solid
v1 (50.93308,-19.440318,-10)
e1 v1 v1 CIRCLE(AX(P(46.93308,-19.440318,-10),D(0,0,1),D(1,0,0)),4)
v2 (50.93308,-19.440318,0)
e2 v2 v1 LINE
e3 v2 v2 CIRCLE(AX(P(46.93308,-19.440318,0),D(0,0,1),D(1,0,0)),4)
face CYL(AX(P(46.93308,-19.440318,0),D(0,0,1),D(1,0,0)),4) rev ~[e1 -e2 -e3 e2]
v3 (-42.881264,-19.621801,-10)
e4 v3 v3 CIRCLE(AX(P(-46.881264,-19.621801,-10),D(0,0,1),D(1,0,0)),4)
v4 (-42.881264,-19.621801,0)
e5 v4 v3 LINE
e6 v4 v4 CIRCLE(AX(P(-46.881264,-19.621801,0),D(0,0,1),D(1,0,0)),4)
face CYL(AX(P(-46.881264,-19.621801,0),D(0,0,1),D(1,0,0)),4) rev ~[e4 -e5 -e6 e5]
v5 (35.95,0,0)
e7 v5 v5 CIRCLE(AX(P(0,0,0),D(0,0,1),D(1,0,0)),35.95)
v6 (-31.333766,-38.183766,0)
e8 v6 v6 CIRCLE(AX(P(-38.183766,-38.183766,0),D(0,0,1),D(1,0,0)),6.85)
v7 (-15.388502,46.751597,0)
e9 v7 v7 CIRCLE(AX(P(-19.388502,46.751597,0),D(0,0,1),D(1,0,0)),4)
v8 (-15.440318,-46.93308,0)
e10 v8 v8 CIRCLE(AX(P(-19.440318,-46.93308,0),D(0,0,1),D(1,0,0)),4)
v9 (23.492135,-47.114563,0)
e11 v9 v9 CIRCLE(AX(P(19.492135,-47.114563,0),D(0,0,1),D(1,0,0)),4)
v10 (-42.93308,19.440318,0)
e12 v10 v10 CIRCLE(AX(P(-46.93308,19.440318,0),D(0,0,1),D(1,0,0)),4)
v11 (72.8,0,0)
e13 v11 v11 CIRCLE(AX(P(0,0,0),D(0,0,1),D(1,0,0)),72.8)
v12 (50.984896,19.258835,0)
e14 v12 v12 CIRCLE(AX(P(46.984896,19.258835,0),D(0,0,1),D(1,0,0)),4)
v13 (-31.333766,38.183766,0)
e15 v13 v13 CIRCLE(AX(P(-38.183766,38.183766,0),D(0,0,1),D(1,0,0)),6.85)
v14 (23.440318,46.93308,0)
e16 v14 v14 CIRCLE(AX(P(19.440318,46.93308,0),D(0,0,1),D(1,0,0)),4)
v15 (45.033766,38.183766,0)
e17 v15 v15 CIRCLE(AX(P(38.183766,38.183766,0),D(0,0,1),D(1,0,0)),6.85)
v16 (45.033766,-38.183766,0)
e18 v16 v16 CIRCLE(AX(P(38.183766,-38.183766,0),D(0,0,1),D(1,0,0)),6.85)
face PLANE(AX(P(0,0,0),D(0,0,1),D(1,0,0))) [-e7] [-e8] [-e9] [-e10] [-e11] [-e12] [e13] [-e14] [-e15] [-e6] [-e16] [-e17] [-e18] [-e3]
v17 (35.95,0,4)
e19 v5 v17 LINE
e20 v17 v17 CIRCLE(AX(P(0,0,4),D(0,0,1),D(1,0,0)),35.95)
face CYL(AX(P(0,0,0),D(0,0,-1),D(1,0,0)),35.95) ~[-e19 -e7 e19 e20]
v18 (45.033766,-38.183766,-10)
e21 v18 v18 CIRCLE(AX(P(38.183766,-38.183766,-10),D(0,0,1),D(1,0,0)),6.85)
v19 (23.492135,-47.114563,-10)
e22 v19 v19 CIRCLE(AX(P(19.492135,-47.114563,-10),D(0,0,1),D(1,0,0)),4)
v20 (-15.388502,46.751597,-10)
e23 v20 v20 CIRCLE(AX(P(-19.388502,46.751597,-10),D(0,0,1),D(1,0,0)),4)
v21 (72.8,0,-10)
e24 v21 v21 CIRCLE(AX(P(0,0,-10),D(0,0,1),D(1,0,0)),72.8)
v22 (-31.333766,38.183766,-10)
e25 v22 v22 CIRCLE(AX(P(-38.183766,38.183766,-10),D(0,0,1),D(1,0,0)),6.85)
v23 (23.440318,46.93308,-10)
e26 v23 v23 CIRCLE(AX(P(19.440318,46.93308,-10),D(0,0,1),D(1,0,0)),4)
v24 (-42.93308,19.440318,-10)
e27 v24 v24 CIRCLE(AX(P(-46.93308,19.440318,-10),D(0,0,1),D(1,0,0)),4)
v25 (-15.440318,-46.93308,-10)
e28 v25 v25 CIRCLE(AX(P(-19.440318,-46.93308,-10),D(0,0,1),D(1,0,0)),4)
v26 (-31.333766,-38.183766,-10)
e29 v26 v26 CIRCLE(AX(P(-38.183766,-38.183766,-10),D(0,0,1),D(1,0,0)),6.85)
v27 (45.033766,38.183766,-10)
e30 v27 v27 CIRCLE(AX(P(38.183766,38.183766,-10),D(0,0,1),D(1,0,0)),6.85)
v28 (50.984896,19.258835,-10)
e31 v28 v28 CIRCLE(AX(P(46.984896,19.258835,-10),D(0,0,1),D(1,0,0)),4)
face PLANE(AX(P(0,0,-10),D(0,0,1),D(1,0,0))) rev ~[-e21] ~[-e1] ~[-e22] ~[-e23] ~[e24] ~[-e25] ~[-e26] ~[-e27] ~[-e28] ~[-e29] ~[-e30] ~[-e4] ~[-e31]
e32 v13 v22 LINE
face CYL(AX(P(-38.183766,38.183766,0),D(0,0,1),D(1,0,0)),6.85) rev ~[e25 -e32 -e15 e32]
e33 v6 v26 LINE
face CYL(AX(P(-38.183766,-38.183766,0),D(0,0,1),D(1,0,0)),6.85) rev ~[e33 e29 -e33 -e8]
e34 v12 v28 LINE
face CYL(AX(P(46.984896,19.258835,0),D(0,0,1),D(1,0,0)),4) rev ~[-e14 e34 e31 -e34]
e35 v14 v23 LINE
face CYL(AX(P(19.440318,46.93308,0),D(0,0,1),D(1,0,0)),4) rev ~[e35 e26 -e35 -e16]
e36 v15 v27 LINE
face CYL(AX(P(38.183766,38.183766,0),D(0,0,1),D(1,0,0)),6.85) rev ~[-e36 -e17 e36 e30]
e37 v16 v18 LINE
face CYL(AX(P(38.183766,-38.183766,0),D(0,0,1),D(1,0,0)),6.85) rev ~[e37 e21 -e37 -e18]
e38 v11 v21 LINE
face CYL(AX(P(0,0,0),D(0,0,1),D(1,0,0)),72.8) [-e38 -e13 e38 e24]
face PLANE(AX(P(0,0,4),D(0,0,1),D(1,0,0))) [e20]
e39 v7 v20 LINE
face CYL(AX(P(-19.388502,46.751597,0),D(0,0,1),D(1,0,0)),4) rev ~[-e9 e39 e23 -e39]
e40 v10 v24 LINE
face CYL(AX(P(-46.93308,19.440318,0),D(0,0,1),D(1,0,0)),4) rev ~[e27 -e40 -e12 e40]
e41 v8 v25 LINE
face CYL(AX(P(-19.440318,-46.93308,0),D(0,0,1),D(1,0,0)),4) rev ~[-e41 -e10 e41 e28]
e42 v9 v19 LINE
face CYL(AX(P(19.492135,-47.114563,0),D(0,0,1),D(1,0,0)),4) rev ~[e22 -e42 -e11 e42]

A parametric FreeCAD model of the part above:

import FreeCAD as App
import Part
import Sketcher
Q = App.Units.Quantity

doc = App.newDocument("Part")
body = doc.addObject("PartDesign::Body", "Body")

# Sketch on XY plane
sketch1 = body.newObject("Sketcher::SketchObject", "Sketch")
sketch1.AttachmentSupport = (doc.getObject("XY_Plane"), [""])
sketch1.MapMode = "FlatFace"
sketch1.addGeometry([
    Part.Circle(App.Vector(0, 0, 0), App.Vector(0, 0, 1), 72.8),  # 0
    Part.Circle(App.Vector(-38.183766, -38.183766, 0), App.Vector(0, 0, 1), 6.85),  # 1
    Part.Circle(App.Vector(-19.440318, -46.93308, 0), App.Vector(0, 0, 1), 4),  # 2
    Part.Circle(App.Vector(-46.881264, -19.621801, 0), App.Vector(0, 0, 1), 4),  # 3
    Part.Circle(App.Vector(19.492135, -47.114563, 0), App.Vector(0, 0, 1), 4),  # 4
    Part.Circle(App.Vector(38.183766, -38.183766, 0), App.Vector(0, 0, 1), 6.85),  # 5
    Part.Circle(App.Vector(46.93308, -19.440318, 0), App.Vector(0, 0, 1), 4),  # 6
    Part.Circle(App.Vector(-46.93308, 19.440318, 0), App.Vector(0, 0, 1), 4),  # 7
    Part.Circle(App.Vector(-38.183766, 38.183766, 0), App.Vector(0, 0, 1), 6.85),  # 8
    Part.Circle(App.Vector(-19.388502, 46.751597, 0), App.Vector(0, 0, 1), 4),  # 9
    Part.Circle(App.Vector(46.984896, 19.258835, 0), App.Vector(0, 0, 1), 4),  # 10
    Part.Circle(App.Vector(19.440318, 46.93308, 0), App.Vector(0, 0, 1), 4),  # 11
    Part.Circle(App.Vector(38.183766, 38.183766, 0), App.Vector(0, 0, 1), 6.85),  # 12
], False)
sketch1.addConstraint([
    Sketcher.Constraint("Coincident", 0, 3, -1, 1),
    Sketcher.Constraint("Equal", 2, 3),
    Sketcher.Constraint("Equal", 3, 4),
    Sketcher.Constraint("Equal", 1, 5),
    Sketcher.Constraint("Equal", 4, 6),
    Sketcher.Constraint("Equal", 6, 7),
    Sketcher.Constraint("Equal", 5, 8),
    Sketcher.Constraint("Equal", 7, 9),
    Sketcher.Constraint("Equal", 9, 10),
    Sketcher.Constraint("Equal", 10, 11),
    Sketcher.Constraint("Equal", 8, 12),
    Sketcher.Constraint("Symmetric", 6, 3, 7, 3, -1, 1),
    Sketcher.Constraint("Symmetric", 5, 3, 8, 3, -1, 1),
    Sketcher.Constraint("Symmetric", 2, 3, 11, 3, -1, 1),
    Sketcher.Constraint("Symmetric", 1, 3, 12, 3, -1, 1),
    Sketcher.Constraint("Symmetric", 1, 3, 5, 3, -2),
    Sketcher.Constraint("Diameter", 2, Q("8 mm")),
    Sketcher.Constraint("Diameter", 0, Q("145.6 mm")),
    Sketcher.Constraint("Diameter", 1, Q("13.7 mm")),
    Sketcher.Constraint("DistanceY", 3, 3, -1, 1, Q("19.621801 mm")),
    Sketcher.Constraint("DistanceX", 9, 3, -1, 1, Q("19.388502 mm")),
    Sketcher.Constraint("DistanceX", 3, 3, 1, 3, Q("8.697498 mm")),
    Sketcher.Constraint("DistanceX", 1, 3, 4, 3, Q("57.675901 mm")),
    Sketcher.Constraint("DistanceY", 5, 3, 10, 3, Q("57.442601 mm")),
    Sketcher.Constraint("DistanceX", 2, 3, -1, 1, Q("19.440318 mm")),
    Sketcher.Constraint("DistanceY", 2, 3, -1, 1, Q("46.93308 mm")),
    Sketcher.Constraint("DistanceX", -1, 1, 6, 3, Q("46.93308 mm")),
    Sketcher.Constraint("DistanceY", 6, 3, -1, 1, Q("19.440318 mm")),
    Sketcher.Constraint("DistanceY", 4, 3, 3, 3, Q("27.492762 mm")),
    Sketcher.Constraint("DistanceX", 4, 3, 5, 3, Q("18.691631 mm")),
    Sketcher.Constraint("DistanceY", 1, 3, 8, 3, Q("76.367532 mm")),
    Sketcher.Constraint("DistanceY", 8, 3, 9, 3, Q("8.567831 mm")),
    Sketcher.Constraint("DistanceX", 5, 3, 10, 3, Q("8.80113 mm")),
])
pad1 = body.newObject("PartDesign::Pad", "Pad")
pad1.Profile = sketch1
pad1.Length = 10
pad1.Reversed = True

# Sketch on XY plane
sketch2 = body.newObject("Sketcher::SketchObject", "Sketch001")
sketch2.AttachmentSupport = (doc.getObject("XY_Plane"), [""])
sketch2.MapMode = "FlatFace"
sketch2.addGeometry(Part.Circle(App.Vector(0, 0, 0), App.Vector(0, 0, 1), 35.95), False)
sketch2.addConstraint([
    Sketcher.Constraint("Coincident", 0, 3, -1, 1),
    Sketcher.Constraint("Diameter", 0, Q("71.9 mm")),
])
pad2 = body.newObject("PartDesign::Pad", "Pad001")
pad2.Profile = sketch2
pad2.Length = 4

doc.recompute()
